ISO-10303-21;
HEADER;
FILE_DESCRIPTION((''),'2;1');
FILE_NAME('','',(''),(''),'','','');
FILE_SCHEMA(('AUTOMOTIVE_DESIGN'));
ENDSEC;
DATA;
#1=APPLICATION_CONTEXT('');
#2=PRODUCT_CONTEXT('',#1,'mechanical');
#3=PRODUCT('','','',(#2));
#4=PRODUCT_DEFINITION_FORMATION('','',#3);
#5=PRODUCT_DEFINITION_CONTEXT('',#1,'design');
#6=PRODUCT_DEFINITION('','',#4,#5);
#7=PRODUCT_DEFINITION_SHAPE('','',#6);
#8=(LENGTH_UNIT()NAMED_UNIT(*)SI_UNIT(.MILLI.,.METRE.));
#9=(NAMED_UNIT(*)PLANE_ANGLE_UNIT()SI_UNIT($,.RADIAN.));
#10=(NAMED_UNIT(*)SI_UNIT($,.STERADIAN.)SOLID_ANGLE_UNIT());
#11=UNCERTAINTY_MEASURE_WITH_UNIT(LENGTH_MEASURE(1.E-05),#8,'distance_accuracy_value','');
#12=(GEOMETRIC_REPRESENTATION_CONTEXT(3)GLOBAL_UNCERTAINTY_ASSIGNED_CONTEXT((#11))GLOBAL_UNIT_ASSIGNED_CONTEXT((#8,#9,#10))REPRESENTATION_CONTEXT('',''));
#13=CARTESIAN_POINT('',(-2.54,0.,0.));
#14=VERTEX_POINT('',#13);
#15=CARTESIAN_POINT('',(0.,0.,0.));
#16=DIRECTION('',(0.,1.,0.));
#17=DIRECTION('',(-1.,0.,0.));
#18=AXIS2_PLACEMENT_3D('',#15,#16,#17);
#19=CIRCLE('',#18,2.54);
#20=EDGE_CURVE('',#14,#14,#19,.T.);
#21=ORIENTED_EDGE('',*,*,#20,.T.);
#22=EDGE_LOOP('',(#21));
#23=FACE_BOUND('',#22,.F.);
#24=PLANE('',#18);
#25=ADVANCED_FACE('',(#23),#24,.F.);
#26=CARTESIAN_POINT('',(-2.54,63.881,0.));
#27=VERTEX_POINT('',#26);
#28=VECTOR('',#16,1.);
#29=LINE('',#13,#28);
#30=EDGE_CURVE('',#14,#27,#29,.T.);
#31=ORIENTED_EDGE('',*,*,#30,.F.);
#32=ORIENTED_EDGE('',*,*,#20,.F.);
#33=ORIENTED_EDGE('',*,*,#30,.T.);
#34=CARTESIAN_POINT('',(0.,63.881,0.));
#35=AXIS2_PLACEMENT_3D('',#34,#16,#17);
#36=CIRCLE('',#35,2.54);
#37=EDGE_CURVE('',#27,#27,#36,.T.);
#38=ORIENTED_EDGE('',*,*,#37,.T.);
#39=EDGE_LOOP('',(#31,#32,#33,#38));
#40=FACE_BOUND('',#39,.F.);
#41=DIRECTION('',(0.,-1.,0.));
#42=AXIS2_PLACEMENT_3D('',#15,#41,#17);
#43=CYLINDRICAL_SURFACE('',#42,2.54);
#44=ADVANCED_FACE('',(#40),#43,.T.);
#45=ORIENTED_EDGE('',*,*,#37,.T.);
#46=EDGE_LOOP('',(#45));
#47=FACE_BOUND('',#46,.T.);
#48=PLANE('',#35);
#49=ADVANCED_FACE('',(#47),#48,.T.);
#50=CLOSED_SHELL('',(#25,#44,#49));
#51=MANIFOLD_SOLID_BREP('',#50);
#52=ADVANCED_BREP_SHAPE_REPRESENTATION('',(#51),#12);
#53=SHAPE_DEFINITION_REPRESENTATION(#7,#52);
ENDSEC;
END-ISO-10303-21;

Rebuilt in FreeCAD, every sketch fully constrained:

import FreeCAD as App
import Part
import Sketcher
from FreeCAD import Vector
Q = App.Units.Quantity

doc = App.newDocument("Part")
body = doc.addObject("PartDesign::Body", "Body")

sketch1 = body.newObject("Sketcher::SketchObject", "Sketch")
sketch1.AttachmentSupport = (doc.getObject("XZ_Plane"), [""])
sketch1.MapMode = "FlatFace"
sketch1.addGeometry(Part.Circle(Vector(0, 0, 0), Vector(0, 0, 1), 2.5), False)
sketch1.addConstraint([
    Sketcher.Constraint("Coincident", 0, 3, -1, 1),
    Sketcher.Constraint("Diameter", 0, Q("0.2 in")),
])
pad1 = body.newObject("PartDesign::Pad", "Pad")
pad1.Profile = sketch1
pad1.Length = Q("2.515 in")
pad1.Reversed = True

doc.recompute()
